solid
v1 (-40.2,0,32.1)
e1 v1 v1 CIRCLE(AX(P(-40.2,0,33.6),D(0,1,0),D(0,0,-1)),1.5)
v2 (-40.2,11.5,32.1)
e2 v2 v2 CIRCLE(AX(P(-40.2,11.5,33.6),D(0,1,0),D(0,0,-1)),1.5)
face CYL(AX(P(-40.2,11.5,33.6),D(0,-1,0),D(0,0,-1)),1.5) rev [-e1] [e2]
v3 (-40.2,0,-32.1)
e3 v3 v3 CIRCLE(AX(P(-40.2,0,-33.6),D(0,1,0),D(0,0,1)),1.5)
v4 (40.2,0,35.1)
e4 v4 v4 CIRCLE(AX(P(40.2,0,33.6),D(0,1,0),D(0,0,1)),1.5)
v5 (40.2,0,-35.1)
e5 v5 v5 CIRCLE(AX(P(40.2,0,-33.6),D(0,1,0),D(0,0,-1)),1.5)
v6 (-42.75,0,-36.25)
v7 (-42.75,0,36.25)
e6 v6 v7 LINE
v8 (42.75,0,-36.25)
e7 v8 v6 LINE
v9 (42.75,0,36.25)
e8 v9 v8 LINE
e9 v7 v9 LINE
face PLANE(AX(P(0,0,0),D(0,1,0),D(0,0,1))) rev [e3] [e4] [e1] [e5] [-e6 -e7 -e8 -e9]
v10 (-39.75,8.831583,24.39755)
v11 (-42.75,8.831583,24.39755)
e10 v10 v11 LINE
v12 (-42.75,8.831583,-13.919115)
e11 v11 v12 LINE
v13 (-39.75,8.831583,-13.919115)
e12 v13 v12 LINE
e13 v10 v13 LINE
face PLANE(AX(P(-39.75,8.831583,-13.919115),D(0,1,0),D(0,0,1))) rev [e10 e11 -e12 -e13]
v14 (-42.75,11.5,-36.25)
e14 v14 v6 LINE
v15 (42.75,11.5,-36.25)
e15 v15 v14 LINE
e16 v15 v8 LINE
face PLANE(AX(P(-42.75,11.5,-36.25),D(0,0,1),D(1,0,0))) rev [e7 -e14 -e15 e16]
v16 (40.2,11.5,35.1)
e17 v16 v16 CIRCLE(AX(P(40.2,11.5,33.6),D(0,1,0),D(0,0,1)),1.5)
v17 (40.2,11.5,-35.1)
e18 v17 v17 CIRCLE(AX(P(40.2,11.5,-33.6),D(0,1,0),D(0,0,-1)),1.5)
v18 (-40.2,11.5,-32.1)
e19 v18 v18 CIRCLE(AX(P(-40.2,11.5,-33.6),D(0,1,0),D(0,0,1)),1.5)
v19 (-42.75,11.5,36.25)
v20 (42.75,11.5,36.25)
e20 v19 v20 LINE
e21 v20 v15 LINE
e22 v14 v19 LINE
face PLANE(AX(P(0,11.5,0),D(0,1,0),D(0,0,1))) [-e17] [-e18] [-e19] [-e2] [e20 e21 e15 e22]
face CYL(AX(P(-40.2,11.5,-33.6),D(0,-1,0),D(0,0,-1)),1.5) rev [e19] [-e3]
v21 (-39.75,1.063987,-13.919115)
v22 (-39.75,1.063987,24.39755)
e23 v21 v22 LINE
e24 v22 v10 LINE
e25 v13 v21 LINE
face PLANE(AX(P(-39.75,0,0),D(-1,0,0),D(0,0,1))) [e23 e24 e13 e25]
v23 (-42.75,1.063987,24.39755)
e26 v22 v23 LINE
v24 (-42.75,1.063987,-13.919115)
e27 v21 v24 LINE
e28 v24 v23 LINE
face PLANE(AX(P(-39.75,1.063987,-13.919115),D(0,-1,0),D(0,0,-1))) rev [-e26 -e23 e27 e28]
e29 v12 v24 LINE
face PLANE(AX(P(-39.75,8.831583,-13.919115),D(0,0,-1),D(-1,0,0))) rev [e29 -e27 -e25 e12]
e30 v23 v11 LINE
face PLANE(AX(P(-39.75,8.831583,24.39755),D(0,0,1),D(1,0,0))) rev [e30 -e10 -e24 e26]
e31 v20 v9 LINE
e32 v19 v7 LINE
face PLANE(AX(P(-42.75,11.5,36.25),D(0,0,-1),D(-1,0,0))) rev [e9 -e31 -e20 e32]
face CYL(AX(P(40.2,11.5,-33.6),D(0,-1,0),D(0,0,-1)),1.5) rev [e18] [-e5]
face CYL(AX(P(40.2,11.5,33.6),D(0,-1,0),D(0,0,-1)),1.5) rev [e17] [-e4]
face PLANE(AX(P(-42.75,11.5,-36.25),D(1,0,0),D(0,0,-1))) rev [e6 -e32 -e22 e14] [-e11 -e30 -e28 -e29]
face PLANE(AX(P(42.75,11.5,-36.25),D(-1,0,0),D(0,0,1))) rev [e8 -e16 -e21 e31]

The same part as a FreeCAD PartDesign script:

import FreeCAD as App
import Part
import Sketcher

V = App.Vector
Q = App.Units.Quantity


def add_polygon(sketch, points):
    """Adds a closed chain of lines whose ends are joined by coincident constraints."""
    first, n = sketch.GeometryCount, len(points)
    for a, b in zip(points, points[1:] + points[:1]):
        sketch.addGeometry(Part.LineSegment(App.Vector(*a, 0), App.Vector(*b, 0)), False)
    for i in range(n):
        sketch.addConstraint(Sketcher.Constraint("Coincident", first + i, 2, first + (i + 1) % n, 1))

doc = App.newDocument("Part")
body = doc.addObject("PartDesign::Body", "Body")

# Sketch on XZ plane
sketch1 = doc.addObject("Sketcher::SketchObject", "Sketch")
body.addObject(sketch1)
sketch1.AttachmentSupport = (doc.XZ_Plane, [""])
sketch1.MapMode = "FlatFace"
add_polygon(sketch1, [(-42.8, -36.2), (-42.8, 36.2), (42.8, 36.2), (42.8, -36.2)])  # lines 0-3
sketch1.addGeometry(Part.Circle(V(-40.2, 33.6, 0), V(0, 0, 1), 1.5), False)  # 4
sketch1.addGeometry(Part.Circle(V(40.2, 33.6, 0), V(0, 0, 1), 1.5), False)  # 5
sketch1.addGeometry(Part.Circle(V(-40.2, -33.6, 0), V(0, 0, 1), 1.5), False)  # 6
sketch1.addGeometry(Part.Circle(V(40.2, -33.6, 0), V(0, 0, 1), 1.5), False)  # 7
sketch1.addConstraint([
    Sketcher.Constraint("Vertical", 0),
    Sketcher.Constraint("Horizontal", 1),
    Sketcher.Constraint("Vertical", 2),
    Sketcher.Constraint("Horizontal", 3),
    Sketcher.Constraint("Equal", 4, 5),
    Sketcher.Constraint("Equal", 5, 6),
    Sketcher.Constraint("Equal", 6, 7),
    Sketcher.Constraint("Symmetric", 5, 3, 6, 3, -1, 1),
    Sketcher.Constraint("Symmetric", 4, 3, 7, 3, -1, 1),
    Sketcher.Constraint("Symmetric", 0, 2, 2, 2, -1, 1),
    Sketcher.Constraint("Symmetric", 4, 3, 5, 3, -2),
    Sketcher.Constraint("Diameter", 4, Q("3 mm")),
    Sketcher.Constraint("DistanceX", 1, 1, 1, 2, Q("85.5 mm")),
    Sketcher.Constraint("DistanceY", 0, 1, 0, 2, Q("72.5 mm")),
    Sketcher.Constraint("DistanceX", 4, 3, -1, 1, Q("40.2 mm")),
    Sketcher.Constraint("DistanceY", -1, 1, 4, 3, Q("33.6 mm")),
])
pad1 = doc.addObject("PartDesign::Pad", "Pad")
body.addObject(pad1)
pad1.Profile = sketch1
pad1.Length = 11.5
pad1.Reversed = True

# Sketch on YZ plane
sketch2 = doc.addObject("Sketcher::SketchObject", "Sketch001")
body.addObject(sketch2)
sketch2.AttachmentSupport = (doc.YZ_Plane, [""])
sketch2.MapMode = "FlatFace"
sketch2.AttachmentOffset = App.Placement(V(0, 0, -42.75), App.Rotation())
add_polygon(sketch2, [(9, -14), (1, -14), (1, 24), (9, 24)])  # lines 0-3
sketch2.addConstraint([
    Sketcher.Constraint("Horizontal", 0),
    Sketcher.Constraint("Vertical", 1),
    Sketcher.Constraint("Horizontal", 2),
    Sketcher.Constraint("Vertical", 3),
    Sketcher.Constraint("DistanceX", 0, 2, 0, 1, Q("7.767596 mm")),
    Sketcher.Constraint("DistanceY", 1, 1, 1, 2, Q("38.316665 mm")),
    Sketcher.Constraint("DistanceY", -1, 1, 1, 2, Q("24.39755 mm")),
    Sketcher.Constraint("DistanceX", -1, 1, 0, 2, Q("1.063987 mm")),
])
pocket1 = doc.addObject("PartDesign::Pocket", "Pocket")
body.addObject(pocket1)
pocket1.Profile = sketch2
pocket1.Length = 3
pocket1.Reversed = True

doc.recompute()
